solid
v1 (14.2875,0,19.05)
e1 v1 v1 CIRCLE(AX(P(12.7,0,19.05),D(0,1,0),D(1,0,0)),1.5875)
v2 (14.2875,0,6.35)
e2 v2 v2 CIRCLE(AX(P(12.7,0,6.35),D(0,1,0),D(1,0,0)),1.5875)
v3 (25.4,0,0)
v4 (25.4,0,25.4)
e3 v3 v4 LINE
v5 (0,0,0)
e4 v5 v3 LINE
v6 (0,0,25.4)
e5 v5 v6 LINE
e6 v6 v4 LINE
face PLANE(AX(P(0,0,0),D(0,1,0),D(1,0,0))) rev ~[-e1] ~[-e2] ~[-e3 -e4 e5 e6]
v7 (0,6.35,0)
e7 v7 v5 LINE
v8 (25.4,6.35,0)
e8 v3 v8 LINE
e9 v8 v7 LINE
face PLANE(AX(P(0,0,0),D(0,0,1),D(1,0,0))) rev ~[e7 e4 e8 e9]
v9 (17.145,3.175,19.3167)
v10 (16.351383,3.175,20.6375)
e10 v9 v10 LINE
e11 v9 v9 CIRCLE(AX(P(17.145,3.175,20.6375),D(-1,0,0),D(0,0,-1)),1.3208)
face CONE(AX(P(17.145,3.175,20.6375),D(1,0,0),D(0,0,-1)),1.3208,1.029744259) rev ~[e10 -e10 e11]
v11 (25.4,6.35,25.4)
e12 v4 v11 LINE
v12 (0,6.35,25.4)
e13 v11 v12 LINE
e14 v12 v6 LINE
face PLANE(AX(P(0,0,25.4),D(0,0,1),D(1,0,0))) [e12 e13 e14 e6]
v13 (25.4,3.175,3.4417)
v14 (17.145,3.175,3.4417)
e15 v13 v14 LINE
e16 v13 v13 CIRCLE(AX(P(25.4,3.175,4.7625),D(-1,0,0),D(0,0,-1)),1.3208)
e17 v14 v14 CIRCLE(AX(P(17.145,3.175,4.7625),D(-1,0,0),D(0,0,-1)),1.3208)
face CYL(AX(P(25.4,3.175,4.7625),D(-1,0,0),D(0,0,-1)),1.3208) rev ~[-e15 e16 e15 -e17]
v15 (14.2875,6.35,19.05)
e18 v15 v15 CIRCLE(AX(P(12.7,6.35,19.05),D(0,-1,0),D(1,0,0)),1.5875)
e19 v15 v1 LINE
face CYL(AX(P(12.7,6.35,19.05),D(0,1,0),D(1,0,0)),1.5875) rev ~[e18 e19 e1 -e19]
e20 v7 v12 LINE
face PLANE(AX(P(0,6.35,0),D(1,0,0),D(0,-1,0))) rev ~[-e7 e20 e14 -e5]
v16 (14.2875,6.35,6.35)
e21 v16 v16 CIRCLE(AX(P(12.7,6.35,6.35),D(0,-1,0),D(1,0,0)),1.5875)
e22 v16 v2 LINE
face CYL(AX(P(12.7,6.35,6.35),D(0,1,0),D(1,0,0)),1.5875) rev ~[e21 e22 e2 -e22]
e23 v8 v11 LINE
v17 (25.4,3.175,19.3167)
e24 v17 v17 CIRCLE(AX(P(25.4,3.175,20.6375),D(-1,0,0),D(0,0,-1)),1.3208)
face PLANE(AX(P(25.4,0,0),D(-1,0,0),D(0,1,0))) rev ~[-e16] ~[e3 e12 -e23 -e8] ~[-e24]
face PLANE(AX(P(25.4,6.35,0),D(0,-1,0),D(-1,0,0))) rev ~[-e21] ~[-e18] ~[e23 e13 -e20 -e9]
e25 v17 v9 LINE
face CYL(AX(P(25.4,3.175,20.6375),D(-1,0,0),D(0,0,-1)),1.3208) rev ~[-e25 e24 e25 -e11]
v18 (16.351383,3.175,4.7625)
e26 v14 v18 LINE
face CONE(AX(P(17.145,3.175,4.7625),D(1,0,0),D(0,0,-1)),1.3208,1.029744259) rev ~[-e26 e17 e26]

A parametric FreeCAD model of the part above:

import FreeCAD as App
import Part
import Sketcher
from FreeCAD import Vector
Q = App.Units.Quantity

doc = App.newDocument("Part")
params = doc.addObject("Spreadsheet::Sheet", "Params")
for row, (alias, value) in enumerate([
    ("sketch1_width", "1 in"),
    ("sketch1_height", "0.25 in"),
    ("pad1_length", "1 in"),
    ("sketch2_diameter", "0.125 in"),
    ("pocket1_length", "1 in"),
    ("sketch3_diameter", "0.104 in"),
    ("hole_diameter", "0.104 in"),
    ("hole_depth", "0.325 in"),
], start=1):
    params.set(f"A{row}", alias)
    params.set(f"B{row}", "=" + value)
    params.setAlias(f"B{row}", alias)

body = doc.addObject("PartDesign::Body", "Body")

# Sketch on XY plane
sketch1 = body.newObject("Sketcher::SketchObject", "Sketch")
sketch1.AttachmentSupport = (doc.getObject("XY_Plane"), [""])
sketch1.MapMode = "FlatFace"
sketch1.addGeometry(Part.LineSegment(Vector(0, 6.35, 0), Vector(0, 0, 0)), False)
sketch1.addGeometry(Part.LineSegment(Vector(0, 0, 0), Vector(25.4, 0, 0)), False)
sketch1.addGeometry(Part.LineSegment(Vector(25.4, 0, 0), Vector(25.4, 6.35, 0)), False)
sketch1.addGeometry(Part.LineSegment(Vector(25.4, 6.35, 0), Vector(0, 6.35, 0)), False)
sketch1.addConstraint(Sketcher.Constraint("Coincident", 0, 2, 1, 1))
sketch1.addConstraint(Sketcher.Constraint("Coincident", 1, 2, 2, 1))
sketch1.addConstraint(Sketcher.Constraint("Coincident", 2, 2, 3, 1))
sketch1.addConstraint(Sketcher.Constraint("Coincident", 3, 2, 0, 1))
sketch1.addConstraint(Sketcher.Constraint("Vertical", 0))
sketch1.addConstraint(Sketcher.Constraint("Horizontal", 1))
sketch1.addConstraint(Sketcher.Constraint("Vertical", 2))
sketch1.addConstraint(Sketcher.Constraint("Horizontal", 3))
sketch1.addConstraint(Sketcher.Constraint("Coincident", 0, 2, -1, 1))
sketch1.addConstraint(Sketcher.Constraint("DistanceX", 1, 1, 1, 2, Q("1 in")))
sketch1.addConstraint(Sketcher.Constraint("DistanceY", 0, 2, 0, 1, Q("0.25 in")))
sketch1.setExpression("Constraints[9]", "Params.sketch1_width")
sketch1.setExpression("Constraints[10]", "Params.sketch1_height")
pad1 = body.newObject("PartDesign::Pad", "Pad")
pad1.Profile = sketch1
pad1.setExpression("Length", "Params.pad1_length")

# Sketch on XZ plane
sketch2 = body.newObject("Sketcher::SketchObject", "Sketch001")
sketch2.AttachmentSupport = (doc.getObject("XZ_Plane"), [""])
sketch2.MapMode = "FlatFace"
sketch2.AttachmentOffset = App.Placement(Vector(0, 0, -0.25 * 25.4), App.Rotation())
sketch2.addGeometry(Part.Circle(Vector(12.7, 6.35, 0), Vector(0, 0, 1), 1.5875), False)
sketch2.addGeometry(Part.Circle(Vector(12.7, 19.05, 0), Vector(0, 0, 1), 1.5875), False)
sketch2.addConstraint(Sketcher.Constraint("Equal", 0, 1))
sketch2.addConstraint(Sketcher.Constraint("Vertical", 0, 3, 1, 3))
sketch2.addConstraint(Sketcher.Constraint("Diameter", 0, Q("0.125 in")))
sketch2.addConstraint(Sketcher.Constraint("DistanceY", -1, 1, 0, 3, Q("0.25 in")))
sketch2.addConstraint(Sketcher.Constraint("DistanceX", -1, 1, 0, 3, Q("0.5 in")))
sketch2.addConstraint(Sketcher.Constraint("DistanceY", 0, 3, 1, 3, Q("0.5 in")))
sketch2.setExpression("Constraints[2]", "Params.sketch2_diameter")
pocket1 = body.newObject("PartDesign::Pocket", "Pocket")
pocket1.Profile = sketch2
pocket1.setExpression("Length", "Params.pocket1_length")
pocket1.Reversed = True

# Sketch on YZ plane
sketch3 = body.newObject("Sketcher::SketchObject", "Sketch002")
sketch3.AttachmentSupport = (doc.getObject("YZ_Plane"), [""])
sketch3.MapMode = "FlatFace"
sketch3.AttachmentOffset = App.Placement(Vector(0, 0, 1 * 25.4), App.Rotation())
sketch3.addGeometry(Part.Circle(Vector(3.175, 20.6375, 0), Vector(0, 0, 1), 1.3208), False)
sketch3.addGeometry(Part.Circle(Vector(3.175, 4.7625, 0), Vector(0, 0, 1), 1.3208), False)
sketch3.addConstraint(Sketcher.Constraint("Equal", 0, 1))
sketch3.addConstraint(Sketcher.Constraint("Vertical", 0, 3, 1, 3))
sketch3.addConstraint(Sketcher.Constraint("Diameter", 0, Q("0.104 in")))
sketch3.addConstraint(Sketcher.Constraint("DistanceX", -1, 1, 0, 3, Q("0.125 in")))
sketch3.addConstraint(Sketcher.Constraint("DistanceY", -1, 1, 0, 3, Q("0.8125 in")))
sketch3.addConstraint(Sketcher.Constraint("DistanceY", -1, 1, 1, 3, Q("0.1875 in")))
sketch3.setExpression("Constraints[2]", "Params.sketch3_diameter")
doc.recompute()
hole = body.newObject("PartDesign::Hole", "Hole")
hole.Profile = sketch3
hole.ThreadType = "None"
hole.setExpression("Diameter", "Params.hole_diameter")
hole.DepthType = "Dimension"
hole.setExpression("Depth", "Params.hole_depth")
hole.DrillPoint = "Angled"
hole.DrillPointAngle = 118

doc.recompute()
